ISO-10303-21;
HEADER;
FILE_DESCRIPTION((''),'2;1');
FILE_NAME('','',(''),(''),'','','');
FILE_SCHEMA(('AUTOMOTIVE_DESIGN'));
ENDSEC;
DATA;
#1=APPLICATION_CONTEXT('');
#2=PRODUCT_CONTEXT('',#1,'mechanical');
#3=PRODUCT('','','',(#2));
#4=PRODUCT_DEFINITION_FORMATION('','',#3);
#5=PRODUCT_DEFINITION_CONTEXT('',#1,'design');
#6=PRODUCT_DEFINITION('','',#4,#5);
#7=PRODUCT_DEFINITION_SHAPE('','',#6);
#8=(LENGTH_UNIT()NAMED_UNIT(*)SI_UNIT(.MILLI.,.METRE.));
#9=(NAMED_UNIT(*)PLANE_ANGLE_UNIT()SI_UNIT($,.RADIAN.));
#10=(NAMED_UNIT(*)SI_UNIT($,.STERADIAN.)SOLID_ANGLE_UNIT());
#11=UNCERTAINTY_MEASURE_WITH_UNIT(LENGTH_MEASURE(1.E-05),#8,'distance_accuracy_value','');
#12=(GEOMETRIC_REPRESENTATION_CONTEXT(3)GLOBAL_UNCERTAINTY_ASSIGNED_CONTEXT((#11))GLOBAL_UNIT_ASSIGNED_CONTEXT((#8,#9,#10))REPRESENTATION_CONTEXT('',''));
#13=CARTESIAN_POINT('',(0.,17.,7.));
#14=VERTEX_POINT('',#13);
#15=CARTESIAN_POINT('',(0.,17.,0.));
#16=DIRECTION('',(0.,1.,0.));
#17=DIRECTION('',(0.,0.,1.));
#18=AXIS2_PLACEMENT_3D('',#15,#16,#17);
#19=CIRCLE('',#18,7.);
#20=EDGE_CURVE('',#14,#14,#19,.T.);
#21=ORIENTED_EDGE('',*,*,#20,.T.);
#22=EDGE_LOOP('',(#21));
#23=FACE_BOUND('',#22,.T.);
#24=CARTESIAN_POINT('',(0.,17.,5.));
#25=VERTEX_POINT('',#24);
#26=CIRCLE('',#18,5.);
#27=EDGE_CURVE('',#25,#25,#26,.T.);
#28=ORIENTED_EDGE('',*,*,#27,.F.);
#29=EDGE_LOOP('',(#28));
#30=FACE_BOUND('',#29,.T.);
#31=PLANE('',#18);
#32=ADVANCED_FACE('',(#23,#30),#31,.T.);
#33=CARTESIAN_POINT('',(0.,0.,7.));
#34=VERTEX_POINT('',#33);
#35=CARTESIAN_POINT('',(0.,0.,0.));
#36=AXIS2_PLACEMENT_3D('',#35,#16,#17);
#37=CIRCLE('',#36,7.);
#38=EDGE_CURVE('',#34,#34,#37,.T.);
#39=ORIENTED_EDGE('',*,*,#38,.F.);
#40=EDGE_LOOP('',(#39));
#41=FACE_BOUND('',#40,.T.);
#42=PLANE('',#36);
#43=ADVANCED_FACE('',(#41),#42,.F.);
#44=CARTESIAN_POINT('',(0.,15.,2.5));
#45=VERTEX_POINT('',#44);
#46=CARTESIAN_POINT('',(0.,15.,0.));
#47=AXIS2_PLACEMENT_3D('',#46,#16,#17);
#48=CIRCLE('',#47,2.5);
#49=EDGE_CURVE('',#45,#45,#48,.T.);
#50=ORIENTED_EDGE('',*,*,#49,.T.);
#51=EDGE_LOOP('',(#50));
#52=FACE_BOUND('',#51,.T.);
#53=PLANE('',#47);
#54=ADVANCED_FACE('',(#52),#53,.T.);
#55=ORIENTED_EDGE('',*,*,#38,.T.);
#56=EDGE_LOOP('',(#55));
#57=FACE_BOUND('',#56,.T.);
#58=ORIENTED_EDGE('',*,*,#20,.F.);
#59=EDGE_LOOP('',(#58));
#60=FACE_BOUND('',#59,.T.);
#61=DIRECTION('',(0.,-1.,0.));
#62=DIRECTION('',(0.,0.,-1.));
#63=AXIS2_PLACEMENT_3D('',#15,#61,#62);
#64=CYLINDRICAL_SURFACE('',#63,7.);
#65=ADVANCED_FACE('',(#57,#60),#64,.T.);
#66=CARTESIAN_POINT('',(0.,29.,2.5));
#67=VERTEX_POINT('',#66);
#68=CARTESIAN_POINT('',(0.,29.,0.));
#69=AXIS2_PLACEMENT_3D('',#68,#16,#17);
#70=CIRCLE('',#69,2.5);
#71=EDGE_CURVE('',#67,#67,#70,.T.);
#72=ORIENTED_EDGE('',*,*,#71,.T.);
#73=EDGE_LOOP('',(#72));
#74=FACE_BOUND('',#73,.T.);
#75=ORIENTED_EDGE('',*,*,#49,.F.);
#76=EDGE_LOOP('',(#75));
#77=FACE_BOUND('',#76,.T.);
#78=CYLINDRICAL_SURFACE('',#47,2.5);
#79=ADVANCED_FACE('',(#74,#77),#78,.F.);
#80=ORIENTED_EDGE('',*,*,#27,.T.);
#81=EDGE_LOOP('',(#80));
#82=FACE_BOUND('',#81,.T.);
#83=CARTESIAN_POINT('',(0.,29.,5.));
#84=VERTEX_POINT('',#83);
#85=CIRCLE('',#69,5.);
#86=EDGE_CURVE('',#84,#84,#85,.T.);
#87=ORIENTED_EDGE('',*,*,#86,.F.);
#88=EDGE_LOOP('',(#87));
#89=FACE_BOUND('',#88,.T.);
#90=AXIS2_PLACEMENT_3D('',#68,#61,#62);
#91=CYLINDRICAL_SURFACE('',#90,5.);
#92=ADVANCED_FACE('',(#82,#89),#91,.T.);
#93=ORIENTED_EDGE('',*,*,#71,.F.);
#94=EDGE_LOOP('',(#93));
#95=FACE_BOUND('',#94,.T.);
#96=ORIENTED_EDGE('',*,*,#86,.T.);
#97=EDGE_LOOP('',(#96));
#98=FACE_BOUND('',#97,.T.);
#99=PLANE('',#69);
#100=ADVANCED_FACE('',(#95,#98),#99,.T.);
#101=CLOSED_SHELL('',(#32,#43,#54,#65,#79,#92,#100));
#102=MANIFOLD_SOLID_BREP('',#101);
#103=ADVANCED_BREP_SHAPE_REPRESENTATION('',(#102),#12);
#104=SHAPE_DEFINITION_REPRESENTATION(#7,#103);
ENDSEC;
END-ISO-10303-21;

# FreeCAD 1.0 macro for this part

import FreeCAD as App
import Part
import Sketcher
from FreeCAD import Vector

doc = App.newDocument("Part")
body = doc.addObject("PartDesign::Body", "Body")

# Sketch on XZ plane
sketch1 = body.newObject("Sketcher::SketchObject", "Sketch")
sketch1.AttachmentSupport = (doc.getObject("XZ_Plane"), [""])
sketch1.MapMode = "FlatFace"
sketch1.addGeometry(Part.Circle(Vector(0, 0, 0), Vector(0, 0, 1), 7), False)
sketch1.addConstraint(Sketcher.Constraint("Coincident", 0, 3, -1, 1))
sketch1.addConstraint(Sketcher.Constraint("Diameter", 0, 14.0))
pad1 = body.newObject("PartDesign::Pad", "Pad")
pad1.Profile = sketch1
pad1.Length = 17
pad1.Reversed = True

# Sketch on XZ plane
sketch2 = body.newObject("Sketcher::SketchObject", "Sketch001")
sketch2.AttachmentSupport = (doc.getObject("XZ_Plane"), [""])
sketch2.MapMode = "FlatFace"
sketch2.AttachmentOffset = App.Placement(Vector(0, 0, -17), App.Rotation())
sketch2.addGeometry(Part.Circle(Vector(0, 0, 0), Vector(0, 0, 1), 5), False)
sketch2.addConstraint(Sketcher.Constraint("Coincident", 0, 3, -1, 1))
sketch2.addConstraint(Sketcher.Constraint("Diameter", 0, 10.0))
pad2 = body.newObject("PartDesign::Pad", "Pad001")
pad2.Profile = sketch2
pad2.Length = 12
pad2.Reversed = True

# Sketch on XZ plane
sketch3 = body.newObject("Sketcher::SketchObject", "Sketch002")
sketch3.AttachmentSupport = (doc.getObject("XZ_Plane"), [""])
sketch3.MapMode = "FlatFace"
sketch3.AttachmentOffset = App.Placement(Vector(0, 0, -29), App.Rotation())
sketch3.addGeometry(Part.Circle(Vector(0, 0, 0), Vector(0, 0, 1), 2.5), False)
sketch3.addConstraint(Sketcher.Constraint("Coincident", 0, 3, -1, 1))
sketch3.addConstraint(Sketcher.Constraint("Diameter", 0, 5.0))
pocket1 = body.newObject("PartDesign::Pocket", "Pocket")
pocket1.Profile = sketch3
pocket1.Length = 14
pocket1.Reversed = True

doc.recompute()
